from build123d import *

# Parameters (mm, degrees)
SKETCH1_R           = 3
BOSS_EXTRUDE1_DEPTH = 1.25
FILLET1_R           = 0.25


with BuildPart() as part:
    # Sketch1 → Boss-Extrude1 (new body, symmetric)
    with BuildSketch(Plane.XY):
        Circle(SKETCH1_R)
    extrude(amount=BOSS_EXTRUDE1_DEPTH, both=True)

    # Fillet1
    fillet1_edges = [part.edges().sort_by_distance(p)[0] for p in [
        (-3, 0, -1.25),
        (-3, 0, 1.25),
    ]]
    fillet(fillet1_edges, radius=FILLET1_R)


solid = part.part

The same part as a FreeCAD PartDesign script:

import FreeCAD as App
import Part
import Sketcher
from FreeCAD import Vector


def edges_at(feature, points):
    """Names of the edges that pass closest to the given points."""
    edges = feature.Shape.Edges
    near = lambda p: min(range(len(edges)), key=lambda i: edges[i].distToShape(Part.Vertex(*p))[0])
    return sorted({f"Edge{near(p) + 1}" for p in points})

doc = App.newDocument("Part")
params = doc.addObject("Spreadsheet::Sheet", "Params")
for row, (alias, value) in enumerate([
    ("sketch1_diameter", "6 mm"),
    ("pad1_length", "2.5 mm"),
    ("fillet_radius", "0.25 mm"),
], start=1):
    params.set(f"A{row}", alias)
    params.set(f"B{row}", "=" + value)
    params.setAlias(f"B{row}", alias)

body = doc.addObject("PartDesign::Body", "Body")

# Sketch on XY plane
sketch1 = body.newObject("Sketcher::SketchObject", "Sketch")
sketch1.AttachmentSupport = (doc.getObject("XY_Plane"), [""])
sketch1.MapMode = "FlatFace"
sketch1.addGeometry(Part.Circle(Vector(0, 0, 0), Vector(0, 0, 1), 3), False)
sketch1.addConstraint(Sketcher.Constraint("Coincident", 0, 3, -1, 1))
sketch1.addConstraint(Sketcher.Constraint("Diameter", 0, 6.0))
sketch1.setExpression("Constraints[1]", "Params.sketch1_diameter")
pad1 = body.newObject("PartDesign::Pad", "Pad")
pad1.Profile = sketch1
pad1.setExpression("Length", "Params.pad1_length")
pad1.Midplane = True
doc.recompute()

fillet = body.newObject("PartDesign::Fillet", "Fillet")
fillet.Base = (pad1, edges_at(pad1, [(-3, 0, -1.25), (-3, 0, 1.25)]))
fillet.setExpression("Radius", "Params.fillet_radius")

doc.recompute()
